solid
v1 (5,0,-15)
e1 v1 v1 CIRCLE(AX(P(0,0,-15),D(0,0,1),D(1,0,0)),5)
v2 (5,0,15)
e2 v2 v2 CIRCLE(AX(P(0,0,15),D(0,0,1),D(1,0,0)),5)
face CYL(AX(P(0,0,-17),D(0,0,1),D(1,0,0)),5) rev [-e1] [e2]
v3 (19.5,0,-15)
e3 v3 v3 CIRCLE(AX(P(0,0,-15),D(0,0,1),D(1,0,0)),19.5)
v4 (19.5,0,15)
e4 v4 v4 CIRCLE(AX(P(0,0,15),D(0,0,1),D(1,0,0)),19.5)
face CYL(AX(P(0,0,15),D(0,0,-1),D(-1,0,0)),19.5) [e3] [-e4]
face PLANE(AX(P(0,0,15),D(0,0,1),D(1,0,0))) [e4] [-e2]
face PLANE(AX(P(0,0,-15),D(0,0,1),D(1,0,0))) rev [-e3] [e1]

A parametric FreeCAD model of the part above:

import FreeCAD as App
import Part
import Sketcher

V = App.Vector
Q = App.Units.Quantity

doc = App.newDocument("Part")
params = doc.addObject("Spreadsheet::Sheet", "Params")
for row, (alias, value) in enumerate([
    ("sketch1_diameter", "39 mm"),
    ("pad1_length", "30 mm"),
    ("sketch2_diameter", "10 mm"),
    ("pocket1_length", "32 mm"),
], start=1):
    params.set(f"A{row}", alias)
    params.set(f"B{row}", "=" + value)
    params.setAlias(f"B{row}", alias)

body = doc.addObject("PartDesign::Body", "Body")

sketch1 = doc.addObject("Sketcher::SketchObject", "Sketch")
body.addObject(sketch1)
sketch1.AttachmentSupport = (doc.XY_Plane, [""])
sketch1.MapMode = "FlatFace"
sketch1.addGeometry(Part.Circle(V(0, 0, 0), V(0, 0, 1), 20), False)
sketch1.addConstraint([
    Sketcher.Constraint("Coincident", 0, 3, -1, 1),
    Sketcher.Constraint("Diameter", 0, Q("39 mm")),
])
sketch1.setExpression("Constraints[1]", "Params.sketch1_diameter")
pad1 = doc.addObject("PartDesign::Pad", "Pad")
body.addObject(pad1)
pad1.Profile = sketch1
pad1.setExpression("Length", "Params.pad1_length")
pad1.Midplane = True

sketch2 = doc.addObject("Sketcher::SketchObject", "Sketch001")
body.addObject(sketch2)
sketch2.AttachmentSupport = (doc.XY_Plane, [""])
sketch2.MapMode = "FlatFace"
sketch2.AttachmentOffset = App.Placement(V(0, 0, 15), App.Rotation())
sketch2.addGeometry(Part.Circle(V(0, 0, 0), V(0, 0, 1), 5), False)
sketch2.addConstraint([
    Sketcher.Constraint("Coincident", 0, 3, -1, 1),
    Sketcher.Constraint("Diameter", 0, Q("10 mm")),
])
sketch2.setExpression("Constraints[1]", "Params.sketch2_diameter")
pocket1 = doc.addObject("PartDesign::Pocket", "Pocket")
body.addObject(pocket1)
pocket1.Profile = sketch2
pocket1.setExpression("Length", "Params.pocket1_length")

doc.recompute()
